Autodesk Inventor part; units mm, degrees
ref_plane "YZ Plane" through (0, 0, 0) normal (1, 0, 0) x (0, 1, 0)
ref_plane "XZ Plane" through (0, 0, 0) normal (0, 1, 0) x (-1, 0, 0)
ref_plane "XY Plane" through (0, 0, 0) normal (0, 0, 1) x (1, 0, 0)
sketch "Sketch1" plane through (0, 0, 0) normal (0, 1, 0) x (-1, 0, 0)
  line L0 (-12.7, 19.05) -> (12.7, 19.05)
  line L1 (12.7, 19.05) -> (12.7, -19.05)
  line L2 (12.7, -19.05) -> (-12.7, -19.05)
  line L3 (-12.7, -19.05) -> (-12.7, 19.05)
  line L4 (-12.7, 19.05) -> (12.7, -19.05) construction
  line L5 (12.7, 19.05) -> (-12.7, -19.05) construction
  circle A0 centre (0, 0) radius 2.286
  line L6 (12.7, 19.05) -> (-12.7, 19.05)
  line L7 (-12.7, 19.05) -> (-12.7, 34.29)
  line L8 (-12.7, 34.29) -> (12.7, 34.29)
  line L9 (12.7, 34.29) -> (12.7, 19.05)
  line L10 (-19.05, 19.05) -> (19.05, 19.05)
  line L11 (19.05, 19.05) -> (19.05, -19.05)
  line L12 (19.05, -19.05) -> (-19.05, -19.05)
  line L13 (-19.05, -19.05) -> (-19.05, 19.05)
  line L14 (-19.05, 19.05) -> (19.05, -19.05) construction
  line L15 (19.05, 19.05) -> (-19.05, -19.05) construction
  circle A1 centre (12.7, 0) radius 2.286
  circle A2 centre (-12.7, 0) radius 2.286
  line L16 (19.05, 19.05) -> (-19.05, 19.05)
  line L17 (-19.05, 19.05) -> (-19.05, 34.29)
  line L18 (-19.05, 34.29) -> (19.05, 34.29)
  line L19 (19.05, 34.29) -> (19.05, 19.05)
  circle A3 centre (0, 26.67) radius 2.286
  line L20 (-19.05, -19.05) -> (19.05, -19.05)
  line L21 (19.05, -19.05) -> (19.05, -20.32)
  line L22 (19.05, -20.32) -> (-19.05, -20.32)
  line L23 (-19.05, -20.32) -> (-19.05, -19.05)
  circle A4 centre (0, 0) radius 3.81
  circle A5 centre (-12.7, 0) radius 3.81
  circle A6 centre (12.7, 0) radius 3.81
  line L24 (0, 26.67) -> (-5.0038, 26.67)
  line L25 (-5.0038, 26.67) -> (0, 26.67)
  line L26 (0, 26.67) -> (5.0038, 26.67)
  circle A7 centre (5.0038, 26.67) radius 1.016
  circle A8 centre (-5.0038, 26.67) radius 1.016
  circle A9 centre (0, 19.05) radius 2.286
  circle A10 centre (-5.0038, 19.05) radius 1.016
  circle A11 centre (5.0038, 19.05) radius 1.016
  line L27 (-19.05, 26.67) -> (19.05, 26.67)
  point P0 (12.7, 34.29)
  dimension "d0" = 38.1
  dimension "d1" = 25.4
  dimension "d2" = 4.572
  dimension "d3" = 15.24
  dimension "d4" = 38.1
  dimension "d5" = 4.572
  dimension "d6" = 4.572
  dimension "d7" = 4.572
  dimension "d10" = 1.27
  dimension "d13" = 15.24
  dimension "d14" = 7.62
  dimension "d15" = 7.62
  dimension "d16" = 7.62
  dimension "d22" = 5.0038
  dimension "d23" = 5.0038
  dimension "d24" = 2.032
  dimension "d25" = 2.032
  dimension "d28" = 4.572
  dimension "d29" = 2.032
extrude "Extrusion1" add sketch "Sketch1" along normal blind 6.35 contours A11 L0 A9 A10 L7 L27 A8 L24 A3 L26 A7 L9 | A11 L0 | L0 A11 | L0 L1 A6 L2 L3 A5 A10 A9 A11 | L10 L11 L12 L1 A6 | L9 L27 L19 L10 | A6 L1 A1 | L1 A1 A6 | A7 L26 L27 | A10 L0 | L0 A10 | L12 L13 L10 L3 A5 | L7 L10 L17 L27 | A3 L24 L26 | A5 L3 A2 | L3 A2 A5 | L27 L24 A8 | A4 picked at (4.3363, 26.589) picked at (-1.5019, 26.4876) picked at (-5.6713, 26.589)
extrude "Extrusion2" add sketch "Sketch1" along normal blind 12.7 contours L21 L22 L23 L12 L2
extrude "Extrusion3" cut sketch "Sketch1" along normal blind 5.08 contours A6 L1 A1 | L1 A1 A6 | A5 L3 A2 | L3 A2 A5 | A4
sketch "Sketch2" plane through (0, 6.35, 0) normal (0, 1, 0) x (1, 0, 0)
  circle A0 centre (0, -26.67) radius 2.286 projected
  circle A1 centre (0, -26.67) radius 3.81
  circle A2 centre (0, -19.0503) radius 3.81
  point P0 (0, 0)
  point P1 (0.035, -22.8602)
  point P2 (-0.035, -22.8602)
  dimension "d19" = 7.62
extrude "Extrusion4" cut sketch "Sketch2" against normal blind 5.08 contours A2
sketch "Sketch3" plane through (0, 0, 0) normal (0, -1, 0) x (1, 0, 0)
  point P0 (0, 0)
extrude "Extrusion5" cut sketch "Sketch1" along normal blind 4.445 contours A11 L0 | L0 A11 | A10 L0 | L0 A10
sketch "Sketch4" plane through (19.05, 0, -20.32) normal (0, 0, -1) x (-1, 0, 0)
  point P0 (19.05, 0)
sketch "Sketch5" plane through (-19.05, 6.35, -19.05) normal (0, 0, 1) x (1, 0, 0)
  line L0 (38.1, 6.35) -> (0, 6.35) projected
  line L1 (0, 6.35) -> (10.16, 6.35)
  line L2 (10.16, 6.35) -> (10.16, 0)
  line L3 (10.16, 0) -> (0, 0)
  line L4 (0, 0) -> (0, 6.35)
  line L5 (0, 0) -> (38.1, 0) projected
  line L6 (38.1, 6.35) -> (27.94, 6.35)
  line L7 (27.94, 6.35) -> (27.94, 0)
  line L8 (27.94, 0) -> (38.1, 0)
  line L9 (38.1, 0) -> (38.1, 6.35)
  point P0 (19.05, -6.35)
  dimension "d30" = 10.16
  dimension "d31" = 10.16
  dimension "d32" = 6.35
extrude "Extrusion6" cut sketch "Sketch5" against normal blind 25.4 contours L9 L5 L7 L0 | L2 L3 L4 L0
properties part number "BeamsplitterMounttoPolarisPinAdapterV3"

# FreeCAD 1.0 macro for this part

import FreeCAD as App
import Part
import Sketcher

V = App.Vector
Q = App.Units.Quantity

doc = App.newDocument("Part")
params = doc.addObject("Spreadsheet::Sheet", "Params")
for row, (alias, value) in enumerate([
    ("sketch1_diameter", "0.18 in"),
    ("sketch1_width", "1.5 in"),
    ("pad1_length", "0.25 in"),
    ("sketch2_width", "1.5 in"),
    ("sketch2_height", "0.05 in"),
    ("pad2_length", "0.5 in"),
    ("sketch3_diameter", "0.3 in"),
    ("sketch3_diameter2", "0.18 in"),
    ("pocket1_length", "0.2 in"),
    ("sketch4_diameter", "0.3 in"),
    ("pocket2_length", "0.2 in"),
    ("sketch5_diameter", "0.08 in"),
    ("pocket3_length", "0.175 in"),
    ("sketch6_width", "0.4 in"),
    ("sketch6_height", "0.25 in"),
    ("pocket4_length", "1 in"),
], start=1):
    params.set(f"A{row}", alias)
    params.set(f"B{row}", "=" + value)
    params.setAlias(f"B{row}", alias)

body = doc.addObject("PartDesign::Body", "Body")

# Sketch on XZ plane
sketch1 = body.newObject("Sketcher::SketchObject", "Sketch")
sketch1.AttachmentSupport = (doc.getObject("XZ_Plane"), [""])
sketch1.MapMode = "FlatFace"
sketch1.addGeometry(Part.LineSegment(V(19.05, 26.67, 0), V(19.05, -19.05, 0)), False)
sketch1.addGeometry(Part.LineSegment(V(19.05, -19.05, 0), V(-19.05, -19.05, 0)), False)
sketch1.addGeometry(Part.LineSegment(V(-19.05, -19.05, 0), V(-19.05, 26.67, 0)), False)
sketch1.addGeometry(Part.LineSegment(V(-19.05, 26.67, 0), V(19.05, 26.67, 0)), False)
sketch1.addGeometry(Part.Circle(V(0, 19.05, 0), V(0, 0, 1), 2.286), False)
sketch1.addGeometry(Part.Circle(V(-12.7, 0, 0), V(0, 0, 1), 2.286), False)
sketch1.addGeometry(Part.Circle(V(12.7, 0, 0), V(0, 0, 1), 2.286), False)
sketch1.addGeometry(Part.Circle(V(0, 0, 0), V(0, 0, 1), 2.286), False)
sketch1.addConstraint(Sketcher.Constraint("Coincident", 0, 2, 1, 1))
sketch1.addConstraint(Sketcher.Constraint("Coincident", 1, 2, 2, 1))
sketch1.addConstraint(Sketcher.Constraint("Coincident", 2, 2, 3, 1))
sketch1.addConstraint(Sketcher.Constraint("Coincident", 3, 2, 0, 1))
sketch1.addConstraint(Sketcher.Constraint("Vertical", 0))
sketch1.addConstraint(Sketcher.Constraint("Horizontal", 1))
sketch1.addConstraint(Sketcher.Constraint("Vertical", 2))
sketch1.addConstraint(Sketcher.Constraint("Horizontal", 3))
sketch1.addConstraint(Sketcher.Constraint("Coincident", 7, 3, -1, 1))
sketch1.addConstraint(Sketcher.Constraint("Equal", 4, 5))
sketch1.addConstraint(Sketcher.Constraint("Equal", 5, 6))
sketch1.addConstraint(Sketcher.Constraint("Equal", 6, 7))
sketch1.addConstraint(Sketcher.Constraint("Symmetric", 5, 3, 6, 3, -1, 1))
sketch1.addConstraint(Sketcher.Constraint("PointOnObject", 4, 3, -2))
sketch1.addConstraint(Sketcher.Constraint("PointOnObject", 5, 3, -1))
sketch1.addConstraint(Sketcher.Constraint("Diameter", 4, Q("0.18 in")))
sketch1.addConstraint(Sketcher.Constraint("DistanceX", 1, 2, 1, 1, Q("1.5 in")))
sketch1.addConstraint(Sketcher.Constraint("DistanceX", 5, 3, 6, 3, Q("1 in")))
sketch1.addConstraint(Sketcher.Constraint("DistanceY", 0, 2, 4, 3, Q("1.5 in")))
sketch1.addConstraint(Sketcher.Constraint("DistanceY", 4, 3, 2, 2, Q("0.3 in")))
sketch1.addConstraint(Sketcher.Constraint("DistanceY", -1, 1, 4, 3, Q("0.75 in")))
sketch1.addConstraint(Sketcher.Constraint("DistanceX", -1, 1, 0, 2, Q("0.75 in")))
sketch1.setExpression("Constraints[15]", "Params.sketch1_diameter")
sketch1.setExpression("Constraints[16]", "Params.sketch1_width")
pad1 = body.newObject("PartDesign::Pad", "Pad")
pad1.Profile = sketch1
pad1.setExpression("Length", "Params.pad1_length")
pad1.Reversed = True

# Sketch on XZ plane
sketch2 = body.newObject("Sketcher::SketchObject", "Sketch001")
sketch2.AttachmentSupport = (doc.getObject("XZ_Plane"), [""])
sketch2.MapMode = "FlatFace"
sketch2.addGeometry(Part.LineSegment(V(-19.05, -20.32, 0), V(-19.05, -19.05, 0)), False)
sketch2.addGeometry(Part.LineSegment(V(-19.05, -19.05, 0), V(19.05, -19.05, 0)), False)
sketch2.addGeometry(Part.LineSegment(V(19.05, -19.05, 0), V(19.05, -20.32, 0)), False)
sketch2.addGeometry(Part.LineSegment(V(19.05, -20.32, 0), V(-19.05, -20.32, 0)), False)
sketch2.addConstraint(Sketcher.Constraint("Coincident", 0, 2, 1, 1))
sketch2.addConstraint(Sketcher.Constraint("Coincident", 1, 2, 2, 1))
sketch2.addConstraint(Sketcher.Constraint("Coincident", 2, 2, 3, 1))
sketch2.addConstraint(Sketcher.Constraint("Coincident", 3, 2, 0, 1))
sketch2.addConstraint(Sketcher.Constraint("Vertical", 0))
sketch2.addConstraint(Sketcher.Constraint("Horizontal", 1))
sketch2.addConstraint(Sketcher.Constraint("Vertical", 2))
sketch2.addConstraint(Sketcher.Constraint("Horizontal", 3))
sketch2.addConstraint(Sketcher.Constraint("DistanceX", 1, 1, 1, 2, Q("1.5 in")))
sketch2.addConstraint(Sketcher.Constraint("DistanceY", 0, 1, 0, 2, Q("0.05 in")))
sketch2.addConstraint(Sketcher.Constraint("DistanceY", 2, 2, -1, 1, Q("0.8 in")))
sketch2.addConstraint(Sketcher.Constraint("DistanceX", 0, 2, -1, 1, Q("0.75 in")))
sketch2.setExpression("Constraints[8]", "Params.sketch2_width")
sketch2.setExpression("Constraints[9]", "Params.sketch2_height")
pad2 = body.newObject("PartDesign::Pad", "Pad001")
pad2.Profile = sketch2
pad2.setExpression("Length", "Params.pad2_length")
pad2.Reversed = True

# Sketch on XZ plane
sketch3 = body.newObject("Sketcher::SketchObject", "Sketch002")
sketch3.AttachmentSupport = (doc.getObject("XZ_Plane"), [""])
sketch3.MapMode = "FlatFace"
sketch3.addGeometry(Part.Circle(V(-12.7, 0, 0), V(0, 0, 1), 3.81), False)
sketch3.addGeometry(Part.Circle(V(-12.7, 0, 0), V(0, 0, 1), 2.286), False)
sketch3.addGeometry(Part.Circle(V(12.7, 0, 0), V(0, 0, 1), 3.81), False)
sketch3.addGeometry(Part.Circle(V(12.7, 0, 0), V(0, 0, 1), 2.286), False)
sketch3.addGeometry(Part.Circle(V(0, 0, 0), V(0, 0, 1), 3.81), False)
sketch3.addGeometry(Part.Circle(V(0, 0, 0), V(0, 0, 1), 2.286), False)
sketch3.addConstraint(Sketcher.Constraint("Coincident", 4, 3, -1, 1))
sketch3.addConstraint(Sketcher.Constraint("Coincident", 5, 3, -1, 1))
sketch3.addConstraint(Sketcher.Constraint("Coincident", 1, 3, 0, 3))
sketch3.addConstraint(Sketcher.Constraint("Coincident", 3, 3, 2, 3))
sketch3.addConstraint(Sketcher.Constraint("Equal", 0, 2))
sketch3.addConstraint(Sketcher.Constraint("Equal", 1, 3))
sketch3.addConstraint(Sketcher.Constraint("Equal", 2, 4))
sketch3.addConstraint(Sketcher.Constraint("Equal", 3, 5))
sketch3.addConstraint(Sketcher.Constraint("Symmetric", 0, 3, 2, 3, -1, 1))
sketch3.addConstraint(Sketcher.Constraint("PointOnObject", 0, 3, -1))
sketch3.addConstraint(Sketcher.Constraint("Diameter", 0, Q("0.3 in")))
sketch3.addConstraint(Sketcher.Constraint("Diameter", 1, Q("0.18 in")))
sketch3.addConstraint(Sketcher.Constraint("DistanceX", 0, 3, 2, 3, Q("1 in")))
sketch3.setExpression("Constraints[10]", "Params.sketch3_diameter")
sketch3.setExpression("Constraints[11]", "Params.sketch3_diameter2")
pocket1 = body.newObject("PartDesign::Pocket", "Pocket")
pocket1.Profile = sketch3
pocket1.setExpression("Length", "Params.pocket1_length")

# Sketch on XZ plane
sketch4 = body.newObject("Sketcher::SketchObject", "Sketch003")
sketch4.AttachmentSupport = (doc.getObject("XZ_Plane"), [""])
sketch4.MapMode = "FlatFace"
sketch4.AttachmentOffset = App.Placement(V(0, 0, -0.25 * 25.4), App.Rotation())
sketch4.addGeometry(Part.Circle(V(0, 19.0503, 0), V(0, 0, 1), 3.81), False)
sketch4.addConstraint(Sketcher.Constraint("PointOnObject", 0, 3, -2))
sketch4.addConstraint(Sketcher.Constraint("Diameter", 0, Q("0.3 in")))
sketch4.addConstraint(Sketcher.Constraint("DistanceY", -1, 1, 0, 3, Q("0.75 in")))
sketch4.setExpression("Constraints[1]", "Params.sketch4_diameter")
pocket2 = body.newObject("PartDesign::Pocket", "Pocket001")
pocket2.Profile = sketch4
pocket2.setExpression("Length", "Params.pocket2_length")
pocket2.Reversed = True

# Sketch on XZ plane
sketch5 = body.newObject("Sketcher::SketchObject", "Sketch004")
sketch5.AttachmentSupport = (doc.getObject("XZ_Plane"), [""])
sketch5.MapMode = "FlatFace"
sketch5.addGeometry(Part.Circle(V(-5.0038, 19.05, 0), V(0, 0, 1), 1.016), False)
sketch5.addGeometry(Part.Circle(V(5.0038, 19.05, 0), V(0, 0, 1), 1.016), False)
sketch5.addConstraint(Sketcher.Constraint("Equal", 0, 1))
sketch5.addConstraint(Sketcher.Constraint("Symmetric", 0, 3, 1, 3, -2))
sketch5.addConstraint(Sketcher.Constraint("Diameter", 0, Q("0.08 in")))
sketch5.addConstraint(Sketcher.Constraint("DistanceX", 0, 3, -1, 1, Q("0.197 in")))
sketch5.addConstraint(Sketcher.Constraint("DistanceY", -1, 1, 0, 3, Q("0.75 in")))
sketch5.setExpression("Constraints[2]", "Params.sketch5_diameter")
pocket3 = body.newObject("PartDesign::Pocket", "Pocket002")
pocket3.Profile = sketch5
pocket3.setExpression("Length", "Params.pocket3_length")

# Sketch on XY plane
sketch6 = body.newObject("Sketcher::SketchObject", "Sketch005")
sketch6.AttachmentSupport = (doc.getObject("XY_Plane"), [""])
sketch6.MapMode = "FlatFace"
sketch6.AttachmentOffset = App.Placement(V(0, 0, -0.75 * 25.4), App.Rotation())
sketch6.addGeometry(Part.LineSegment(V(19.05, 6.35, 0), V(19.05, 12.7, 0)), False)
sketch6.addGeometry(Part.LineSegment(V(19.05, 12.7, 0), V(8.89, 12.7, 0)), False)
sketch6.addGeometry(Part.LineSegment(V(8.89, 12.7, 0), V(8.89, 6.35, 0)), False)
sketch6.addGeometry(Part.LineSegment(V(8.89, 6.35, 0), V(19.05, 6.35, 0)), False)
sketch6.addGeometry(Part.LineSegment(V(-8.89, 6.35, 0), V(-8.89, 12.7, 0)), False)
sketch6.addGeometry(Part.LineSegment(V(-8.89, 12.7, 0), V(-19.05, 12.7, 0)), False)
sketch6.addGeometry(Part.LineSegment(V(-19.05, 12.7, 0), V(-19.05, 6.35, 0)), False)
sketch6.addGeometry(Part.LineSegment(V(-19.05, 6.35, 0), V(-8.89, 6.35, 0)), False)
sketch6.addConstraint(Sketcher.Constraint("Coincident", 0, 2, 1, 1))
sketch6.addConstraint(Sketcher.Constraint("Coincident", 1, 2, 2, 1))
sketch6.addConstraint(Sketcher.Constraint("Coincident", 2, 2, 3, 1))
sketch6.addConstraint(Sketcher.Constraint("Coincident", 3, 2, 0, 1))
sketch6.addConstraint(Sketcher.Constraint("Coincident", 4, 2, 5, 1))
sketch6.addConstraint(Sketcher.Constraint("Coincident", 5, 2, 6, 1))
sketch6.addConstraint(Sketcher.Constraint("Coincident", 6, 2, 7, 1))
sketch6.addConstraint(Sketcher.Constraint("Coincident", 7, 2, 4, 1))
sketch6.addConstraint(Sketcher.Constraint("Vertical", 0))
sketch6.addConstraint(Sketcher.Constraint("Horizontal", 1))
sketch6.addConstraint(Sketcher.Constraint("Vertical", 2))
sketch6.addConstraint(Sketcher.Constraint("Horizontal", 3))
sketch6.addConstraint(Sketcher.Constraint("Vertical", 4))
sketch6.addConstraint(Sketcher.Constraint("Horizontal", 5))
sketch6.addConstraint(Sketcher.Constraint("Vertical", 6))
sketch6.addConstraint(Sketcher.Constraint("Horizontal", 7))
sketch6.addConstraint(Sketcher.Constraint("Symmetric", 1, 2, 4, 2, -2))
sketch6.addConstraint(Sketcher.Constraint("Symmetric", 3, 2, 6, 2, -2))
sketch6.addConstraint(Sketcher.Constraint("DistanceX", 1, 2, 1, 1, Q("0.4 in")))
sketch6.addConstraint(Sketcher.Constraint("DistanceY", 0, 1, 0, 2, Q("0.25 in")))
sketch6.addConstraint(Sketcher.Constraint("DistanceY", -1, 1, 2, 2, Q("0.25 in")))
sketch6.addConstraint(Sketcher.Constraint("DistanceX", 4, 2, 1, 2, Q("0.7 in")))
sketch6.setExpression("Constraints[18]", "Params.sketch6_width")
sketch6.setExpression("Constraints[19]", "Params.sketch6_height")
pocket4 = body.newObject("PartDesign::Pocket", "Pocket003")
pocket4.Profile = sketch6
pocket4.setExpression("Length", "Params.pocket4_length")

doc.recompute()
